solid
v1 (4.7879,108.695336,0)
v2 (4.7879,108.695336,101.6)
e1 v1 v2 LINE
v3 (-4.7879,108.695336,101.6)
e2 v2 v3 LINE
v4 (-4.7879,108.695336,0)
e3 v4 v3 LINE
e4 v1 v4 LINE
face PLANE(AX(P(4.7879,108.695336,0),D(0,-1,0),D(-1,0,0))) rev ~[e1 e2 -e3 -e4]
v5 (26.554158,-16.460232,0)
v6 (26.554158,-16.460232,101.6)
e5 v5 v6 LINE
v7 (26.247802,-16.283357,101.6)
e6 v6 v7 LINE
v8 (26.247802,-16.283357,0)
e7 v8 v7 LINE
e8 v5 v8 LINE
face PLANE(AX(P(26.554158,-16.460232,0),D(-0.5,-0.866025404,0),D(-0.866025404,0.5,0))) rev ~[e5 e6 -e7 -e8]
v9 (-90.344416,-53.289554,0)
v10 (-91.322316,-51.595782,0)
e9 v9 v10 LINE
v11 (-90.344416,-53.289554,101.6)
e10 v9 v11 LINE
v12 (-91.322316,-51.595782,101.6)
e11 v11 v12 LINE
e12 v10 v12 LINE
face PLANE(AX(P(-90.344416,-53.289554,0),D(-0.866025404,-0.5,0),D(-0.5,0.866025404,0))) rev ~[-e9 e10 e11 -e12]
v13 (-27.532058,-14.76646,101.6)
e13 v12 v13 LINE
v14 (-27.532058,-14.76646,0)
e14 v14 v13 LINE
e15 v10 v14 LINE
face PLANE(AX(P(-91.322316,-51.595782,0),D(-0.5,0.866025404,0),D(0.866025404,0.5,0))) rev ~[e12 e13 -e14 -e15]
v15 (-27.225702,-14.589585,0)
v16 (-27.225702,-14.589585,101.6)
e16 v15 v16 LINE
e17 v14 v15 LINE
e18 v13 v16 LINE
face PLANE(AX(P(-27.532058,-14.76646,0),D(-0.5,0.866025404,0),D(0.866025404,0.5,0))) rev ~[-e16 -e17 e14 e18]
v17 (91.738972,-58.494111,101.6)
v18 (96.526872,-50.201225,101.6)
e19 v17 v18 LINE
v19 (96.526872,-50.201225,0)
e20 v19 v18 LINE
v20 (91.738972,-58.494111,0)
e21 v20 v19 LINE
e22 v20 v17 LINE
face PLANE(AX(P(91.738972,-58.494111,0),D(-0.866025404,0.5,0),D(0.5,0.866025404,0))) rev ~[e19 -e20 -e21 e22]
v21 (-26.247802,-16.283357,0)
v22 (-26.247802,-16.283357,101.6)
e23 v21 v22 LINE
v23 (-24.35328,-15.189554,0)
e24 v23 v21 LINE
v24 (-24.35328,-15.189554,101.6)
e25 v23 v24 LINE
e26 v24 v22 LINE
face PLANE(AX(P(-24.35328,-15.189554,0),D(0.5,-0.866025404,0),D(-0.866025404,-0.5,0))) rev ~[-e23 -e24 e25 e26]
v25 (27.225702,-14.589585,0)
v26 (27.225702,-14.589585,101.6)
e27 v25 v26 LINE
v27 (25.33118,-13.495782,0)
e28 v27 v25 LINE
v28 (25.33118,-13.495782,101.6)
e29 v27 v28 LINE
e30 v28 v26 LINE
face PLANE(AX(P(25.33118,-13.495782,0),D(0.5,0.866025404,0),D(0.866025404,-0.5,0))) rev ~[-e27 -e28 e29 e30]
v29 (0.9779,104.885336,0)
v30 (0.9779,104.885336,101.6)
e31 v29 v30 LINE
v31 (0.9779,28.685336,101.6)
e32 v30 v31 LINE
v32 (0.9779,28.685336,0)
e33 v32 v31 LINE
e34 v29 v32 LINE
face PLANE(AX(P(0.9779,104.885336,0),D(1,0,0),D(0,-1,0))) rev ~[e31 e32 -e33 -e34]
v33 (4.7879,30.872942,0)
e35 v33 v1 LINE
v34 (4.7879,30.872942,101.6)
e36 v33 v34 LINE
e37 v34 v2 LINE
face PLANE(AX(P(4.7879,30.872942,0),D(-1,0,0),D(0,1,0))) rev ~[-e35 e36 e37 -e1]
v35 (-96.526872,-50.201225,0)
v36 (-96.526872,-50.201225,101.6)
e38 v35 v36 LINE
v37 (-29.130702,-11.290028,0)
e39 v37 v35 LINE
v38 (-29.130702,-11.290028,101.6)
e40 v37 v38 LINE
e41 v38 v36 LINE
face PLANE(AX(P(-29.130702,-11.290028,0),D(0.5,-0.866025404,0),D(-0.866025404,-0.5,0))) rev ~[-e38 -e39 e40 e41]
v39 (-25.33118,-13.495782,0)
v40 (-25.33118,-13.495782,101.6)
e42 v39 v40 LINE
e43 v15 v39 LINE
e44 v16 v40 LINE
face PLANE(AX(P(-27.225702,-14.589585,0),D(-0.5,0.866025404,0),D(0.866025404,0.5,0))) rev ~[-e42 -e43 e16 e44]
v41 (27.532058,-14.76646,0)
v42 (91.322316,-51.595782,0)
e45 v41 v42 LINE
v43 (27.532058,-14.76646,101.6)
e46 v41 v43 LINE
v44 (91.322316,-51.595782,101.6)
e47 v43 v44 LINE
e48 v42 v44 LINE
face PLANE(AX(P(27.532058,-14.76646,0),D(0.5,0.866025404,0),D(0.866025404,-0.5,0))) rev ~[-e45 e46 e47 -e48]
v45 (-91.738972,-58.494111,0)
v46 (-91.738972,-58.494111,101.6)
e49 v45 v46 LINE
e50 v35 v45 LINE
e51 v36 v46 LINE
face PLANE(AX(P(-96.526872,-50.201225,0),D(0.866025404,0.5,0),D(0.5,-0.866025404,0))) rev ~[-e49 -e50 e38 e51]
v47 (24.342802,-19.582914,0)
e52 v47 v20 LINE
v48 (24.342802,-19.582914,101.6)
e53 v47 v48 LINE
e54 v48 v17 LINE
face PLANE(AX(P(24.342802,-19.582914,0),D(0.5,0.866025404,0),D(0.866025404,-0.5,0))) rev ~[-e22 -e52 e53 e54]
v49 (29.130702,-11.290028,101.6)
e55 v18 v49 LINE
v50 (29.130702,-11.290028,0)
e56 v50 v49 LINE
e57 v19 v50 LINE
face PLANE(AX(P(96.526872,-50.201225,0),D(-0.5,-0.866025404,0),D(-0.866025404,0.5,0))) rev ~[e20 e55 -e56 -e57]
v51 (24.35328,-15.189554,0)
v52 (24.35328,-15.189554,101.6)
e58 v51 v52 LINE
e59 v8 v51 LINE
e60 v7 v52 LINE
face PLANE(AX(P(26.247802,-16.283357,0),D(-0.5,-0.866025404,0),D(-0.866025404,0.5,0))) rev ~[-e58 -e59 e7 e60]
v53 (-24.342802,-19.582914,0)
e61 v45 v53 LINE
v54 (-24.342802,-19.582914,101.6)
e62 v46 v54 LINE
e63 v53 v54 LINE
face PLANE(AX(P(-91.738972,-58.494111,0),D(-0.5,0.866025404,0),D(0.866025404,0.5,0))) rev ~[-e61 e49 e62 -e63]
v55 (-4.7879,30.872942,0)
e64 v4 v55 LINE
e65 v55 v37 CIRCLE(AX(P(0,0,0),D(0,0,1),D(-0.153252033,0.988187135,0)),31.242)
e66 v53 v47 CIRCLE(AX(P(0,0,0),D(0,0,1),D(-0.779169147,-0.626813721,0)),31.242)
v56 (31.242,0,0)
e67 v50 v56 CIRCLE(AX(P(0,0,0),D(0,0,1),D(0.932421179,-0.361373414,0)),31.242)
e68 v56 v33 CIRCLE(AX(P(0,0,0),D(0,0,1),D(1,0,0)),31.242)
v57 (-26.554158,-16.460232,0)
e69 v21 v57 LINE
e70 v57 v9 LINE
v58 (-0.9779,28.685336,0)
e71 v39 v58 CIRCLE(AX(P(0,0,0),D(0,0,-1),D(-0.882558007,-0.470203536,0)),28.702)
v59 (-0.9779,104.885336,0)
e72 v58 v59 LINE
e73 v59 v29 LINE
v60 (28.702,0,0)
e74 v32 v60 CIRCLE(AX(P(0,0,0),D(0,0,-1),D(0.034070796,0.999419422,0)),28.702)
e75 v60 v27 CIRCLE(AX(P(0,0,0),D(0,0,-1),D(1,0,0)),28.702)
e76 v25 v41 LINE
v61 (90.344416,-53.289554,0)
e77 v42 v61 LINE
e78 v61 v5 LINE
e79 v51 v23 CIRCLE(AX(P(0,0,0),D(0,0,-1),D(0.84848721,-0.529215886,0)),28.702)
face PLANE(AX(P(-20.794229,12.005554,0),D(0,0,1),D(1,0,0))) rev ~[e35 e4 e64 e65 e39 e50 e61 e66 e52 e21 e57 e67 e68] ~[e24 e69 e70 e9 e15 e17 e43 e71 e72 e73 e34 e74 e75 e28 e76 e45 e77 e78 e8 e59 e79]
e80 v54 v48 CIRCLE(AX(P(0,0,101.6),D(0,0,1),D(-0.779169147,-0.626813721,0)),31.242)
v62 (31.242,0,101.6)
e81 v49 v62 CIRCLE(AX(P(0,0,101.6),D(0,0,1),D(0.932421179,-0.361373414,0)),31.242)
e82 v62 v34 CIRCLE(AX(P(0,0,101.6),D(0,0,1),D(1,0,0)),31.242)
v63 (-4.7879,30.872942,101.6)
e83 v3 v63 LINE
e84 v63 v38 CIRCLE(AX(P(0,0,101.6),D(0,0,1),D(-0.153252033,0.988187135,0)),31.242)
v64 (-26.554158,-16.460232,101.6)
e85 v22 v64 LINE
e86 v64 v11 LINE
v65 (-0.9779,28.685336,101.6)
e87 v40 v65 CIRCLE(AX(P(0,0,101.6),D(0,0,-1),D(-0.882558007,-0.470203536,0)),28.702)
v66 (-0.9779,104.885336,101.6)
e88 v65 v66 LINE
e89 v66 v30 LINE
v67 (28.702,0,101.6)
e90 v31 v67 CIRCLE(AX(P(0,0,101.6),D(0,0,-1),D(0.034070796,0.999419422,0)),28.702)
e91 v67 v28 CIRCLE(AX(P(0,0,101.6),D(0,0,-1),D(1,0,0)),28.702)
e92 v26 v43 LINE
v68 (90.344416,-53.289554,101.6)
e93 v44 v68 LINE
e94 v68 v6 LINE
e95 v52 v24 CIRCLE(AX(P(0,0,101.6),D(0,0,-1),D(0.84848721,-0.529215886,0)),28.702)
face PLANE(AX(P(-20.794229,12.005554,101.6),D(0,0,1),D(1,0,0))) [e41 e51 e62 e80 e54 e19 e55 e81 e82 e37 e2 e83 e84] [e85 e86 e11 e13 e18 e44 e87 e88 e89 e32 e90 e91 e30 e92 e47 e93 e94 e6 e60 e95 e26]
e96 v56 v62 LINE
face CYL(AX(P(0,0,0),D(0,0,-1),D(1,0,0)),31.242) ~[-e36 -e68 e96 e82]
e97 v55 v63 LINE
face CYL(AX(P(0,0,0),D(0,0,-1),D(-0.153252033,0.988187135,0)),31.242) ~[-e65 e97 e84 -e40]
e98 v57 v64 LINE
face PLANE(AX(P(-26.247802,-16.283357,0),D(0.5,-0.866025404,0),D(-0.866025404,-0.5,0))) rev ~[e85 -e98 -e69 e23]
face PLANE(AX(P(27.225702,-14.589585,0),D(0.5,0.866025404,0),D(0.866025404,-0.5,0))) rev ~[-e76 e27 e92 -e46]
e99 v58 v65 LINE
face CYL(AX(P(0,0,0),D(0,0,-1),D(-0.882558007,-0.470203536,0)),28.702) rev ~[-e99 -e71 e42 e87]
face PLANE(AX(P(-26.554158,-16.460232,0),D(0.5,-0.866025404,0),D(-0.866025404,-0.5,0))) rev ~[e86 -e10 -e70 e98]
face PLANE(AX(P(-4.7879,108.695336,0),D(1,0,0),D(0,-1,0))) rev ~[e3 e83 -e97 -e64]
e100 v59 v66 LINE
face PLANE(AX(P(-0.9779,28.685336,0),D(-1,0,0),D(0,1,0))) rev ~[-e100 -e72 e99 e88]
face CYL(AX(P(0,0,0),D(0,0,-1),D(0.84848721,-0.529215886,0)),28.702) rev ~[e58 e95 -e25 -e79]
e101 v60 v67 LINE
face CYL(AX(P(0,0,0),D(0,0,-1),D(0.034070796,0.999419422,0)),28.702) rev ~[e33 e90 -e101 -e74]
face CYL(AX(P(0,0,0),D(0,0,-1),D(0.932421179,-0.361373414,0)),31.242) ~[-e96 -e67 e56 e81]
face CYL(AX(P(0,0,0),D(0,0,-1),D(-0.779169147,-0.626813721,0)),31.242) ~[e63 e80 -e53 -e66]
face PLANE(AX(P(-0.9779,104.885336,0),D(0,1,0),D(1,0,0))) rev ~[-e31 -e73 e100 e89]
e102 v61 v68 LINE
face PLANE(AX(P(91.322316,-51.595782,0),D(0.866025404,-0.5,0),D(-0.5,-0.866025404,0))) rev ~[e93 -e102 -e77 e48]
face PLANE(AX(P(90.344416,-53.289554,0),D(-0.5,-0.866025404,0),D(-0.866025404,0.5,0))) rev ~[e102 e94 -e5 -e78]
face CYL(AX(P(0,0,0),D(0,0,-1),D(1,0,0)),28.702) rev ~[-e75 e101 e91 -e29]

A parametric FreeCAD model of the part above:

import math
import FreeCAD as App
import Part
import Sketcher
Q = App.Units.Quantity

doc = App.newDocument("Part")
body = doc.addObject("PartDesign::Body", "Body")

sketch1 = body.newObject("Sketcher::SketchObject", "Sketch")
sketch1.AttachmentSupport = (doc.getObject("XY_Plane"), [""])
sketch1.MapMode = "FlatFace"
sketch1.addGeometry([
    Part.ArcOfCircle(Part.Circle(App.Vector(0, 0, 0), App.Vector(0, 0, 1), 31.24), math.radians(99), math.radians(201)),
    Part.LineSegment(App.Vector(-29.13, -11.29, 0), App.Vector(-96.53, -50.2, 0)),
    Part.LineSegment(App.Vector(-96.53, -50.2, 0), App.Vector(-91.74, -58.49, 0)),
    Part.LineSegment(App.Vector(-91.74, -58.49, 0), App.Vector(-24.34, -19.58, 0)),
    Part.ArcOfCircle(Part.Circle(App.Vector(0, 0, 0), App.Vector(0, 0, 1), 31.24), math.radians(-141), math.radians(-39)),
    Part.LineSegment(App.Vector(24.34, -19.58, 0), App.Vector(91.74, -58.49, 0)),
    Part.LineSegment(App.Vector(91.74, -58.49, 0), App.Vector(96.53, -50.2, 0)),
    Part.LineSegment(App.Vector(96.53, -50.2, 0), App.Vector(29.13, -11.29, 0)),
    Part.ArcOfCircle(Part.Circle(App.Vector(0, 0, 0), App.Vector(0, 0, 1), 31.24), math.radians(-21), math.radians(0)),
    Part.ArcOfCircle(Part.Circle(App.Vector(0, 0, 0), App.Vector(0, 0, 1), 31.24), math.radians(0), math.radians(81)),
    Part.LineSegment(App.Vector(4.79, 30.87, 0), App.Vector(4.79, 108.7, 0)),
    Part.LineSegment(App.Vector(4.79, 108.7, 0), App.Vector(-4.79, 108.7, 0)),
    Part.LineSegment(App.Vector(-4.79, 108.7, 0), App.Vector(-4.79, 30.87, 0)),
    Part.LineSegment(App.Vector(-91.32, -51.6, 0), App.Vector(-27.53, -14.77, 0)),
    Part.LineSegment(App.Vector(-27.53, -14.77, 0), App.Vector(-27.23, -14.59, 0)),
    Part.LineSegment(App.Vector(-27.23, -14.59, 0), App.Vector(-25.33, -13.5, 0)),
    Part.ArcOfCircle(Part.Circle(App.Vector(0, 0, 0), App.Vector(0, 0, 1), 28.7), math.radians(92), math.radians(208)),
    Part.LineSegment(App.Vector(-0.98, 28.69, 0), App.Vector(-0.98, 104.89, 0)),
    Part.LineSegment(App.Vector(-0.98, 104.89, 0), App.Vector(0.98, 104.89, 0)),
    Part.LineSegment(App.Vector(0.98, 104.89, 0), App.Vector(0.98, 28.69, 0)),
    Part.ArcOfCircle(Part.Circle(App.Vector(0, 0, 0), App.Vector(0, 0, 1), 28.7), math.radians(0), math.radians(88)),
    Part.ArcOfCircle(Part.Circle(App.Vector(0, 0, 0), App.Vector(0, 0, 1), 28.7), math.radians(-28), math.radians(0)),
    Part.LineSegment(App.Vector(25.33, -13.5, 0), App.Vector(27.23, -14.59, 0)),
    Part.LineSegment(App.Vector(27.23, -14.59, 0), App.Vector(27.53, -14.77, 0)),
    Part.LineSegment(App.Vector(27.53, -14.77, 0), App.Vector(91.32, -51.6, 0)),
    Part.LineSegment(App.Vector(91.32, -51.6, 0), App.Vector(90.34, -53.29, 0)),
    Part.LineSegment(App.Vector(90.34, -53.29, 0), App.Vector(26.55, -16.46, 0)),
    Part.LineSegment(App.Vector(26.55, -16.46, 0), App.Vector(26.25, -16.28, 0)),
    Part.LineSegment(App.Vector(26.25, -16.28, 0), App.Vector(24.35, -15.19, 0)),
    Part.ArcOfCircle(Part.Circle(App.Vector(0, 0, 0), App.Vector(0, 0, 1), 28.7), math.radians(-148), math.radians(-32)),
    Part.LineSegment(App.Vector(-24.35, -15.19, 0), App.Vector(-26.25, -16.28, 0)),
    Part.LineSegment(App.Vector(-26.25, -16.28, 0), App.Vector(-26.55, -16.46, 0)),
    Part.LineSegment(App.Vector(-26.55, -16.46, 0), App.Vector(-90.34, -53.29, 0)),
    Part.LineSegment(App.Vector(-90.34, -53.29, 0), App.Vector(-91.32, -51.6, 0)),
], False)
sketch1.addConstraint([
    Sketcher.Constraint("Coincident", 0, 2, 1, 1),
    Sketcher.Constraint("Coincident", 1, 2, 2, 1),
    Sketcher.Constraint("Coincident", 2, 2, 3, 1),
    Sketcher.Constraint("Coincident", 3, 2, 4, 1),
    Sketcher.Constraint("Coincident", 4, 2, 5, 1),
    Sketcher.Constraint("Coincident", 5, 2, 6, 1),
    Sketcher.Constraint("Coincident", 6, 2, 7, 1),
    Sketcher.Constraint("Coincident", 7, 2, 8, 1),
    Sketcher.Constraint("Tangent", 8, 2, 9, 1),
    Sketcher.Constraint("Coincident", 9, 2, 10, 1),
    Sketcher.Constraint("Coincident", 10, 2, 11, 1),
    Sketcher.Constraint("Coincident", 11, 2, 12, 1),
    Sketcher.Constraint("Coincident", 12, 2, 0, 1),
    Sketcher.Constraint("Coincident", 13, 2, 14, 1),
    Sketcher.Constraint("Coincident", 14, 2, 15, 1),
    Sketcher.Constraint("Coincident", 15, 2, 16, 2),
    Sketcher.Constraint("Coincident", 16, 1, 17, 1),
    Sketcher.Constraint("Coincident", 17, 2, 18, 1),
    Sketcher.Constraint("Coincident", 18, 2, 19, 1),
    Sketcher.Constraint("Coincident", 19, 2, 20, 2),
    Sketcher.Constraint("Tangent", 20, 1, 21, 2),
    Sketcher.Constraint("Coincident", 21, 1, 22, 1),
    Sketcher.Constraint("Coincident", 22, 2, 23, 1),
    Sketcher.Constraint("Coincident", 23, 2, 24, 1),
    Sketcher.Constraint("Coincident", 24, 2, 25, 1),
    Sketcher.Constraint("Coincident", 25, 2, 26, 1),
    Sketcher.Constraint("Coincident", 26, 2, 27, 1),
    Sketcher.Constraint("Coincident", 27, 2, 28, 1),
    Sketcher.Constraint("Coincident", 28, 2, 29, 2),
    Sketcher.Constraint("Coincident", 29, 1, 30, 1),
    Sketcher.Constraint("Coincident", 30, 2, 31, 1),
    Sketcher.Constraint("Coincident", 31, 2, 32, 1),
    Sketcher.Constraint("Coincident", 32, 2, 33, 1),
    Sketcher.Constraint("Coincident", 33, 2, 13, 1),
    Sketcher.Constraint("Vertical", 10),
    Sketcher.Constraint("Horizontal", 11),
    Sketcher.Constraint("Vertical", 12),
    Sketcher.Constraint("Vertical", 17),
    Sketcher.Constraint("Horizontal", 18),
    Sketcher.Constraint("Vertical", 19),
    Sketcher.Constraint("Coincident", 0, 3, -1, 1),
    Sketcher.Constraint("Coincident", 4, 3, -1, 1),
    Sketcher.Constraint("Coincident", 8, 3, -1, 1),
    Sketcher.Constraint("Coincident", 16, 3, -1, 1),
    Sketcher.Constraint("Coincident", 20, 3, -1, 1),
    Sketcher.Constraint("Coincident", 29, 3, -1, 1),
    Sketcher.Constraint("Equal", 0, 4),
    Sketcher.Constraint("Equal", 4, 8),
    Sketcher.Constraint("Equal", 8, 9),
    Sketcher.Constraint("Equal", 16, 20),
    Sketcher.Constraint("Equal", 20, 21),
    Sketcher.Constraint("Equal", 21, 29),
    Sketcher.Constraint("Symmetric", 2, 2, 5, 2, -2),
    Sketcher.Constraint("Symmetric", 1, 2, 6, 2, -2),
    Sketcher.Constraint("Symmetric", 14, 2, 22, 2, -2),
    Sketcher.Constraint("Symmetric", 13, 2, 23, 2, -2),
    Sketcher.Constraint("Symmetric", 27, 2, 30, 2, -2),
    Sketcher.Constraint("Symmetric", 26, 2, 31, 2, -2),
    Sketcher.Constraint("Symmetric", 25, 2, 32, 2, -2),
    Sketcher.Constraint("Symmetric", 24, 2, 33, 2, -2),
    Sketcher.Constraint("PointOnObject", 8, 2, -1),
    Sketcher.Constraint("PointOnObject", 20, 1, -1),
    Sketcher.Constraint("Perpendicular", 1, 2),
    Sketcher.Constraint("Perpendicular", 2, 3),
    Sketcher.Constraint("Perpendicular", 5, 6),
    Sketcher.Constraint("Perpendicular", 6, 7),
    Sketcher.Constraint("Parallel", 3, 13),
    Sketcher.Constraint("Parallel", 13, 14),
    Sketcher.Constraint("Parallel", 14, 15),
    Sketcher.Constraint("Parallel", 7, 22),
    Sketcher.Constraint("Perpendicular", 24, 25),
    Sketcher.Constraint("Perpendicular", 25, 26),
    Sketcher.Constraint("Parallel", 26, 27),
    Sketcher.Constraint("Parallel", 27, 28),
    Sketcher.Constraint("Parallel", 15, 30),
    Sketcher.Constraint("Horizontal", 9, 2, 12, 2),
    Sketcher.Constraint("Horizontal", 16, 1, 19, 2),
    Sketcher.Constraint("Equal", 1, 3),
    Sketcher.Constraint("Equal", 24, 26),
    Sketcher.Constraint("Equal", 23, 27),
    Sketcher.Constraint("Equal", 22, 28),
    Sketcher.Constraint("DistanceY", 17, 1, 17, 2, Q("3 in")),
    Sketcher.Constraint("Radius", 0, Q("1.23 in")),
    Sketcher.Constraint("Radius", 16, Q("1.13 in")),
    Sketcher.Constraint("Angle", 1, Q("-150 deg")),
    Sketcher.Constraint("DistanceX", 11, 2, 11, 1, Q("0.377 in")),
    Sketcher.Constraint("DistanceX", 18, 1, 18, 2, Q("0.077 in")),
    Sketcher.Constraint("DistanceY", 17, 2, 11, 2, Q("0.15 in")),
    Sketcher.Constraint("Distance", 2, Q("0.377 in")),
    Sketcher.Constraint("Distance", 25, Q("0.077 in")),
    Sketcher.Constraint("DistanceX", 0, 2, 14, 2, Q("0.075 in")),
    Sketcher.Constraint("Distance", 14, Q("0.353749 mm")),
    Sketcher.Constraint("DistanceY", 2, 2, -1, 1, Q("58.494111 mm")),
    Sketcher.Constraint("DistanceY", 24, 2, -1, 1, Q("51.595782 mm")),
])
pad1 = body.newObject("PartDesign::Pad", "Pad")
pad1.Profile = sketch1
pad1.Length = Q("4 in")

doc.recompute()
